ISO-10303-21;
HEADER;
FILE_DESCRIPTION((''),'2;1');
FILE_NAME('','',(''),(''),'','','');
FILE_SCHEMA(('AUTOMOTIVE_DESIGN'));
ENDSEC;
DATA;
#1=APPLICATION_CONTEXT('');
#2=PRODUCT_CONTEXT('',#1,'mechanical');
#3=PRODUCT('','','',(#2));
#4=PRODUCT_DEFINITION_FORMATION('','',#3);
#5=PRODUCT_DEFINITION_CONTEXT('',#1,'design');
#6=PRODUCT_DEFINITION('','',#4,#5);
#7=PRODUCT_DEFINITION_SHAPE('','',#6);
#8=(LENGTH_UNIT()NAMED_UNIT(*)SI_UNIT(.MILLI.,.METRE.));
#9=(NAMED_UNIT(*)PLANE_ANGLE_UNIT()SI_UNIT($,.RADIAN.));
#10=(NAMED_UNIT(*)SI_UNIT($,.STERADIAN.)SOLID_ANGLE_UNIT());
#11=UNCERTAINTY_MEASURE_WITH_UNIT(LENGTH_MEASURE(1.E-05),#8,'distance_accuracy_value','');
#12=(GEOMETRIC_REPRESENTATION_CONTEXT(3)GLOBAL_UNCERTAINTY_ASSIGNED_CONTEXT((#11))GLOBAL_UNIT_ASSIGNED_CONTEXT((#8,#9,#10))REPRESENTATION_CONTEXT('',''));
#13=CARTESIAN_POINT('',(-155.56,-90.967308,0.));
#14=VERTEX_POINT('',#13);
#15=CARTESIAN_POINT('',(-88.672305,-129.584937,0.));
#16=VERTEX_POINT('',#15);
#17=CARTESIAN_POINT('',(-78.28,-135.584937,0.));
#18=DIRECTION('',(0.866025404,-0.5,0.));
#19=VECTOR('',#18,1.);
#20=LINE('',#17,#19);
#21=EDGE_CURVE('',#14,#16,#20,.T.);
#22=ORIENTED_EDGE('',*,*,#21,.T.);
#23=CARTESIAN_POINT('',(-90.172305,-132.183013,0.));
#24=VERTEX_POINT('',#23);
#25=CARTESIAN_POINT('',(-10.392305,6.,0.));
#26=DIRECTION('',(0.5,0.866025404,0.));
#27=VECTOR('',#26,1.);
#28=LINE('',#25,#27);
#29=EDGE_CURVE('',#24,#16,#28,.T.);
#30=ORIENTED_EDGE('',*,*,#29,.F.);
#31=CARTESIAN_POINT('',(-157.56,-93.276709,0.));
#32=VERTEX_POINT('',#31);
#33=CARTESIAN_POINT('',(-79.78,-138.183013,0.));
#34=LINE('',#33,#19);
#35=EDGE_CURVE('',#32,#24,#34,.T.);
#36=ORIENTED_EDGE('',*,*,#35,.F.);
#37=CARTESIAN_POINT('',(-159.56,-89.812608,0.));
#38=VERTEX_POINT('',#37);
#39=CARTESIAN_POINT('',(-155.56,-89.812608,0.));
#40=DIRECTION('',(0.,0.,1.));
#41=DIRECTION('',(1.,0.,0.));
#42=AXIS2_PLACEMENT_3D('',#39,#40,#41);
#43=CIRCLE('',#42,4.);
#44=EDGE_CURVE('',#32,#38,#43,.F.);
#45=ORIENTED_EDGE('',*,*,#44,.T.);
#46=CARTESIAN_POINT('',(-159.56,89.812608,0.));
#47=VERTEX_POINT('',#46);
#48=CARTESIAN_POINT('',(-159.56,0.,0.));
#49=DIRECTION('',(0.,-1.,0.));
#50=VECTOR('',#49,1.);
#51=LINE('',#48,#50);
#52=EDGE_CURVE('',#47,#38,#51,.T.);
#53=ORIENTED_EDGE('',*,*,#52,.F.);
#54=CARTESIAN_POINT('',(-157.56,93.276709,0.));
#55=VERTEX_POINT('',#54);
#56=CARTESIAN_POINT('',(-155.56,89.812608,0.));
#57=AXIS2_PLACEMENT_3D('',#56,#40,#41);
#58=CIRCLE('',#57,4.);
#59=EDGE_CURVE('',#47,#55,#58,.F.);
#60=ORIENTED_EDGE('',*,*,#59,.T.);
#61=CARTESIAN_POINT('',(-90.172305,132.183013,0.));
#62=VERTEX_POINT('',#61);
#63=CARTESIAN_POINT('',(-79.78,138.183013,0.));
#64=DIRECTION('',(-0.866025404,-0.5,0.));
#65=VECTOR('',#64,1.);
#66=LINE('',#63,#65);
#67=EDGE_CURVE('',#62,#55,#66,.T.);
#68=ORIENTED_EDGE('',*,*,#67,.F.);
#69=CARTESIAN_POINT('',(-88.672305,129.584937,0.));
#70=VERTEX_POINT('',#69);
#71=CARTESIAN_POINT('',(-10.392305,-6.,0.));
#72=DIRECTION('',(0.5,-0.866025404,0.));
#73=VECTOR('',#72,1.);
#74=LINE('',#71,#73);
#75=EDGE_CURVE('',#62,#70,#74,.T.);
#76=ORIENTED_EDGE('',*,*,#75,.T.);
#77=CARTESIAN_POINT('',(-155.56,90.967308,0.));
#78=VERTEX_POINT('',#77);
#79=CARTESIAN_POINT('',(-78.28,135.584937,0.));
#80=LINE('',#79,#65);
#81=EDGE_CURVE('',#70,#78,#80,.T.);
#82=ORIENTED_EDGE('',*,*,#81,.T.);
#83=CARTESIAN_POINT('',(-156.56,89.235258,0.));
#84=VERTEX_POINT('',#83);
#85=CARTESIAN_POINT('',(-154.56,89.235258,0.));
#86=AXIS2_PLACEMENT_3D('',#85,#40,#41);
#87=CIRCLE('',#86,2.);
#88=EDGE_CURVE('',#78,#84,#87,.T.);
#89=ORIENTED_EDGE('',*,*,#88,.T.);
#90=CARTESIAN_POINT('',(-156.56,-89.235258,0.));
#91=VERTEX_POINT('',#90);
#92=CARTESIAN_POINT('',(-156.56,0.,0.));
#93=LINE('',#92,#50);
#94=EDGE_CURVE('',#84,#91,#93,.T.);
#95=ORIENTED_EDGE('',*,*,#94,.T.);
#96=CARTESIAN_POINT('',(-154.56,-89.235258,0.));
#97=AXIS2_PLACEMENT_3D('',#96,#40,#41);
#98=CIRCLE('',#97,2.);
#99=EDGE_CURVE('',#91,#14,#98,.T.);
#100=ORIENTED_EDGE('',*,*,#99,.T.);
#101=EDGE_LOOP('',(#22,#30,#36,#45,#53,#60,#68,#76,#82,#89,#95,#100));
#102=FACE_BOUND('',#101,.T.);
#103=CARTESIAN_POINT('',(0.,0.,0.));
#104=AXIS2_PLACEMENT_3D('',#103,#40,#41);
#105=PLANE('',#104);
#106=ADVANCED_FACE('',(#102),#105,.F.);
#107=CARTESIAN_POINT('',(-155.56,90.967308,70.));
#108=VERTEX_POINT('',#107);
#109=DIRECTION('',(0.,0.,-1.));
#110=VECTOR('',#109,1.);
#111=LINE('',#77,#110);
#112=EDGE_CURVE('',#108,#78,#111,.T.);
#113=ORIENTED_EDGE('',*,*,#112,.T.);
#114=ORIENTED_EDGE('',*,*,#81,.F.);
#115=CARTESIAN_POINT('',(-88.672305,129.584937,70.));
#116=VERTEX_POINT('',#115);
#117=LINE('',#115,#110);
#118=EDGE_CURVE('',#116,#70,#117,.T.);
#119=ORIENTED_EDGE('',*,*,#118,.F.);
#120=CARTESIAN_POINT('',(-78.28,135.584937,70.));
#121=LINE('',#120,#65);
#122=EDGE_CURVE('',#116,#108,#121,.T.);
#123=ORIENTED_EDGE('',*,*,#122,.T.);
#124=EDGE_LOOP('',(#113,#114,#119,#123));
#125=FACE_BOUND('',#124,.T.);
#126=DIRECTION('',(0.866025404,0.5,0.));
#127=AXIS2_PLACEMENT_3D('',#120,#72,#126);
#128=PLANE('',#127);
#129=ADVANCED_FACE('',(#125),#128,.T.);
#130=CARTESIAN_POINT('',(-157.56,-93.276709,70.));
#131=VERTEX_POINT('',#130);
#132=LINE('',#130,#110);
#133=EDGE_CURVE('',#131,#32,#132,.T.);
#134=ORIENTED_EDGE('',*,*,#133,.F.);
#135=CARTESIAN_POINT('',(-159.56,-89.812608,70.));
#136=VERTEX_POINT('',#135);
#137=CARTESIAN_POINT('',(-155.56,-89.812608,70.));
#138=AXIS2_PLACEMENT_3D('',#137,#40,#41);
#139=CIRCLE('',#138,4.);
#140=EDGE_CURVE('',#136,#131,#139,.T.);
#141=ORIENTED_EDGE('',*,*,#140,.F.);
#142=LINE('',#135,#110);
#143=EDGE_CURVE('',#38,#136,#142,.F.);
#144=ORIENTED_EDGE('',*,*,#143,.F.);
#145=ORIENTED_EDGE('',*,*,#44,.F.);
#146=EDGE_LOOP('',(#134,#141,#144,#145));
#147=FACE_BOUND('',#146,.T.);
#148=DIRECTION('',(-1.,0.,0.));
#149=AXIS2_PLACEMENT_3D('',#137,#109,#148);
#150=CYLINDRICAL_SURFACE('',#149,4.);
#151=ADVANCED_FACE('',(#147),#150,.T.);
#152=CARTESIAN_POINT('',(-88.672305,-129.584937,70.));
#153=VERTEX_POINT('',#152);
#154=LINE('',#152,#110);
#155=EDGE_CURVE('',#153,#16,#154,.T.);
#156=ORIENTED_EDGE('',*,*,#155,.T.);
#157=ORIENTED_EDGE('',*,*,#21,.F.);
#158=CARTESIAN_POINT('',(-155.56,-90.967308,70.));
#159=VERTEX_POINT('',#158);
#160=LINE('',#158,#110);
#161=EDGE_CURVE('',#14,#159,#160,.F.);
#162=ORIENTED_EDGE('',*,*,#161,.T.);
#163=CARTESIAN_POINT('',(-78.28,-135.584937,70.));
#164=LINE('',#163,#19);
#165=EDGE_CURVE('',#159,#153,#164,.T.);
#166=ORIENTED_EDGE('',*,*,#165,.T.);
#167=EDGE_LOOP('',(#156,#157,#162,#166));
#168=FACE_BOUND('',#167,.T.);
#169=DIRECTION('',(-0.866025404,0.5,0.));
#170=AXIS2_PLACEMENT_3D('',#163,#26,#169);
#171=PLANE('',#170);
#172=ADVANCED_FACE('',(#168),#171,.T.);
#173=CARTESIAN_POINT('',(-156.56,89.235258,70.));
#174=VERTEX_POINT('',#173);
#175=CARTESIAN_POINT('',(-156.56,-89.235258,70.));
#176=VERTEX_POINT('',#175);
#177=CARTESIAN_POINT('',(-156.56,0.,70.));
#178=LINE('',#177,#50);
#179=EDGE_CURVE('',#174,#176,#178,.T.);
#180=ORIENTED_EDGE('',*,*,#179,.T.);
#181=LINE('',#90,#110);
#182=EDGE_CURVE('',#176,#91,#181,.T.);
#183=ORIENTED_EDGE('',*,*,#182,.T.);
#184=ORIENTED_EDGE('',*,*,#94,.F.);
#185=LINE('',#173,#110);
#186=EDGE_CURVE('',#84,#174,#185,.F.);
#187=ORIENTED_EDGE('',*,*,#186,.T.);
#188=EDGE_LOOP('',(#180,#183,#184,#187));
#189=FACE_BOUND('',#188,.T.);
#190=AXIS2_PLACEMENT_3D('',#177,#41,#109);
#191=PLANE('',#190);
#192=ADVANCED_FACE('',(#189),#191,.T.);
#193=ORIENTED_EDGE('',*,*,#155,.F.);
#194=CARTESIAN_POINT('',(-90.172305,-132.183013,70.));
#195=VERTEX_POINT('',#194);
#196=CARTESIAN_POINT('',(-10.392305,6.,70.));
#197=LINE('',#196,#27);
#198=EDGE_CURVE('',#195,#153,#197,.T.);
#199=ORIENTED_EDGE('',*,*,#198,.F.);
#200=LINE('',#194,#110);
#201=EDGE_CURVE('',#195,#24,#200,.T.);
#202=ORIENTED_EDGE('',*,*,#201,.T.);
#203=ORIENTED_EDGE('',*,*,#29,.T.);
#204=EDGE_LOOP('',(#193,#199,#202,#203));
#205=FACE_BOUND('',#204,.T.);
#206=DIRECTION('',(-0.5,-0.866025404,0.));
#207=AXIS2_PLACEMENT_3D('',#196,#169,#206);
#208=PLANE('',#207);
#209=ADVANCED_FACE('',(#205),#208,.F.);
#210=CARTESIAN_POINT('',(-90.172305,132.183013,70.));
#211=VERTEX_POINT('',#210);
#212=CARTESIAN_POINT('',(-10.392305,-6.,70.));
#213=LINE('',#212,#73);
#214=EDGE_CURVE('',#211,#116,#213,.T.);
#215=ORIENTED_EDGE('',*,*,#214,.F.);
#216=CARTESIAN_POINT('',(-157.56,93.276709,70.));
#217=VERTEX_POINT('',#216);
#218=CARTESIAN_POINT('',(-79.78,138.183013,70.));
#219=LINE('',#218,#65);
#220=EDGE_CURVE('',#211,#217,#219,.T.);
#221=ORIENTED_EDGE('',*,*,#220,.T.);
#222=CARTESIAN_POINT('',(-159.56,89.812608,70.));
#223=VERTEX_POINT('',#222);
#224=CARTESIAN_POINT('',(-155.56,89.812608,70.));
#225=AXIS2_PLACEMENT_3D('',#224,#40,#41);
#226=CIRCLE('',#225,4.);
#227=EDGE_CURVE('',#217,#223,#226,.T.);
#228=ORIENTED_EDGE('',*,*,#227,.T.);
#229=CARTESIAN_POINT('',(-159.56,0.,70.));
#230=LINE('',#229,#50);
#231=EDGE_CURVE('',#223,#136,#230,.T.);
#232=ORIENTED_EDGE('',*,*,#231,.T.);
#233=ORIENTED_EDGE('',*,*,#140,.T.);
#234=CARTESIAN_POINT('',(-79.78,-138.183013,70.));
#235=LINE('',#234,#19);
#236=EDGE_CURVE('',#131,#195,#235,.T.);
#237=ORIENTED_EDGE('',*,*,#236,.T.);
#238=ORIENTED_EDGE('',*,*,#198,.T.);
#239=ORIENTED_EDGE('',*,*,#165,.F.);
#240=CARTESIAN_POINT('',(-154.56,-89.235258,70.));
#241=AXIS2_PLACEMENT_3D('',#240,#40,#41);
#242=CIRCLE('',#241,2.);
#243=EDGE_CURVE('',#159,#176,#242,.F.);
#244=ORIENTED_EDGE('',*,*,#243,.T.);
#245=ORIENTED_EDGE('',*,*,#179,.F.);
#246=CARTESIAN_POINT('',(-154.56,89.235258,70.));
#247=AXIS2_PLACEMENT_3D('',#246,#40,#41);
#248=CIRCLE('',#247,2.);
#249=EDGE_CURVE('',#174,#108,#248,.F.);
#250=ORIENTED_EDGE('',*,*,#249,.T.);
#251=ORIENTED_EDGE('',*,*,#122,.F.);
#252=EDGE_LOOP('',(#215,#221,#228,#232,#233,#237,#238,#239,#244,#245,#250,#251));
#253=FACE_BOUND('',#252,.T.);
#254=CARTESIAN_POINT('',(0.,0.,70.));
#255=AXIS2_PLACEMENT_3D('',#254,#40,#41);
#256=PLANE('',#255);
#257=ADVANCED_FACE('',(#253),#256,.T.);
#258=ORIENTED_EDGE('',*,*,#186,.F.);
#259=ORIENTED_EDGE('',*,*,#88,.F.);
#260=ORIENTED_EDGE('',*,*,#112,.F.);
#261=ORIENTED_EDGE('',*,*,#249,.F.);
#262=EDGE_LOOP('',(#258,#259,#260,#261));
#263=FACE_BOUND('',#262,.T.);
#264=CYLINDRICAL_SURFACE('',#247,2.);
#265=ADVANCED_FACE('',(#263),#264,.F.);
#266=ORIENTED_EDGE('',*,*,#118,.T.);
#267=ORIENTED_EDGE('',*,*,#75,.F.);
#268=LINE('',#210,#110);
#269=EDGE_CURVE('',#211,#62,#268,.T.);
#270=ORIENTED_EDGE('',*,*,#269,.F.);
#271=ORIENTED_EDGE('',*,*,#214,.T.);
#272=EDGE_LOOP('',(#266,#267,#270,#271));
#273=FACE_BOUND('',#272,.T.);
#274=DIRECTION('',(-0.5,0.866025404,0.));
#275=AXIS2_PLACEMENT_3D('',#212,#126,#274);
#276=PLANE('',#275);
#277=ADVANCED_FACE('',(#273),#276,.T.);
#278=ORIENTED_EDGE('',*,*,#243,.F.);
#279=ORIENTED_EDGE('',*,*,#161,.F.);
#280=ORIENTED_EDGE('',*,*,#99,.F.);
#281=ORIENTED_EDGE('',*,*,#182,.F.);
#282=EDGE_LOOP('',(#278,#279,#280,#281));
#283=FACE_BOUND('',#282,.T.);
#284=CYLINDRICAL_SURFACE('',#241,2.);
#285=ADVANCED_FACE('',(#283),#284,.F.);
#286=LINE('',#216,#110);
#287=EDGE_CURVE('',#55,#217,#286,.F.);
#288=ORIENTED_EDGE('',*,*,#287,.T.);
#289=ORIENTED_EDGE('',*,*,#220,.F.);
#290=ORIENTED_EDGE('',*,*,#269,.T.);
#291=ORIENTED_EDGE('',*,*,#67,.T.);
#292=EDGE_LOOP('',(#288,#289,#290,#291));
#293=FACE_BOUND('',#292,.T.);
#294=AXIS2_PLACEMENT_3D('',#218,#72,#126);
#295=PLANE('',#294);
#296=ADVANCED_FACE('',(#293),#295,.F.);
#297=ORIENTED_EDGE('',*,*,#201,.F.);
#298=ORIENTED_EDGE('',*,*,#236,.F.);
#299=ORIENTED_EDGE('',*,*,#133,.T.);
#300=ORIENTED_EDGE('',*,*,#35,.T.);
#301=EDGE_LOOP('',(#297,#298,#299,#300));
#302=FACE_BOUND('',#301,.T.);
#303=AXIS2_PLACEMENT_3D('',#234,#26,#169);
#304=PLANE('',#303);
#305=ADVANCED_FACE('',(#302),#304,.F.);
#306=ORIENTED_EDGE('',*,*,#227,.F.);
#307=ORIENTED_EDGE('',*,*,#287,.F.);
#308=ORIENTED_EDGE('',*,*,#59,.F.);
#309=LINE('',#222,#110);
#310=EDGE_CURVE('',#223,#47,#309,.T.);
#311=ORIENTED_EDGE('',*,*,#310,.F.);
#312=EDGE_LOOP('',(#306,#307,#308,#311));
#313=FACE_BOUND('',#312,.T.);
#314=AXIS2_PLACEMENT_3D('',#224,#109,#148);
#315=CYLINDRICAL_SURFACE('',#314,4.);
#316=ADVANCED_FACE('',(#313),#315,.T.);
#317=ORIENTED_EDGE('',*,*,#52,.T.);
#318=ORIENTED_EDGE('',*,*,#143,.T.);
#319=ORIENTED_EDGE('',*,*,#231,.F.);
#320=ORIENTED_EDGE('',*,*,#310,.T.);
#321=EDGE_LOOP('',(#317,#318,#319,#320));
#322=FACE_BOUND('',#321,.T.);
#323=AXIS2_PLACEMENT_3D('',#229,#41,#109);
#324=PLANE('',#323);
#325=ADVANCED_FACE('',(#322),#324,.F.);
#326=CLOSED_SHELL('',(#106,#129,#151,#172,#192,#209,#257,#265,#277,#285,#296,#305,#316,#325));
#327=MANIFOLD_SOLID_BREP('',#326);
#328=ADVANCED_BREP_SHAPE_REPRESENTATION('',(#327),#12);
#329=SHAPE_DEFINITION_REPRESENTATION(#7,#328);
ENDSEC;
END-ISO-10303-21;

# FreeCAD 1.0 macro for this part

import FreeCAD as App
import Part
import Sketcher
Q = App.Units.Quantity


def edges_at(feature, points):
    """Names of the edges that pass closest to the given points."""
    edges = feature.Shape.Edges
    near = lambda p: min(range(len(edges)), key=lambda i: edges[i].distToShape(Part.Vertex(*p))[0])
    return sorted({f"Edge{near(p) + 1}" for p in points})

doc = App.newDocument("Part")
params = doc.addObject("Spreadsheet::Sheet", "Params")
for row, (alias, value) in enumerate([
    ("sketch1_length", "3 mm"),
    ("pad1_length", "70 mm"),
    ("fillet_radius", "2 mm"),
    ("fillet2_radius", "4 mm"),
], start=1):
    params.set(f"A{row}", alias)
    params.set(f"B{row}", "=" + value)
    params.setAlias(f"B{row}", alias)

body = doc.addObject("PartDesign::Body", "Body")

# Sketch on XY plane
sketch1 = doc.addObject("Sketcher::SketchObject", "Sketch")
body.addObject(sketch1)
sketch1.AttachmentSupport = (doc.XY_Plane, [""])
sketch1.MapMode = "FlatFace"
sketch1.addGeometry([
    Part.LineSegment(App.Vector(-88.7, -129.6, 0), App.Vector(-156.6, -90.4, 0)),  # 0
    Part.LineSegment(App.Vector(-156.6, -90.4, 0), App.Vector(-156.6, 90.4, 0)),  # 1
    Part.LineSegment(App.Vector(-156.6, 90.4, 0), App.Vector(-88.7, 129.6, 0)),  # 2
    Part.LineSegment(App.Vector(-88.7, 129.6, 0), App.Vector(-90.2, 132.2, 0)),  # 3
    Part.LineSegment(App.Vector(-90.2, 132.2, 0), App.Vector(-159.6, 92.1, 0)),  # 4
    Part.LineSegment(App.Vector(-159.6, 92.1, 0), App.Vector(-159.6, -92.1, 0)),  # 5
    Part.LineSegment(App.Vector(-159.6, -92.1, 0), App.Vector(-90.2, -132.2, 0)),  # 6
    Part.LineSegment(App.Vector(-90.2, -132.2, 0), App.Vector(-88.7, -129.6, 0)),  # 7
], False)
sketch1.addConstraint([
    Sketcher.Constraint("Coincident", 0, 2, 1, 1),
    Sketcher.Constraint("Coincident", 1, 2, 2, 1),
    Sketcher.Constraint("Coincident", 2, 2, 3, 1),
    Sketcher.Constraint("Coincident", 3, 2, 4, 1),
    Sketcher.Constraint("Coincident", 4, 2, 5, 1),
    Sketcher.Constraint("Coincident", 5, 2, 6, 1),
    Sketcher.Constraint("Coincident", 6, 2, 7, 1),
    Sketcher.Constraint("Coincident", 7, 2, 0, 1),
    Sketcher.Constraint("Vertical", 1),
    Sketcher.Constraint("Vertical", 5),
    Sketcher.Constraint("Symmetric", 3, 2, 6, 2, -1),
    Sketcher.Constraint("Symmetric", 2, 2, 7, 2, -1),
    Sketcher.Constraint("Perpendicular", 2, 3),
    Sketcher.Constraint("Perpendicular", 3, 4),
    Sketcher.Constraint("Parallel", 0, 6),
    Sketcher.Constraint("Perpendicular", 6, 7),
    Sketcher.Constraint("Angle", 0, Q("150 deg")),
    Sketcher.Constraint("Distance", 3, Q("3 mm")),
    Sketcher.Constraint("DistanceX", 4, 2, 1, 2, Q("3 mm")),
    Sketcher.Constraint("DistanceX", 0, 2, -1, 1, Q("156.56 mm")),
    Sketcher.Constraint("Distance", 0, Q("78.389958 mm")),
    Sketcher.Constraint("DistanceY", 1, 1, 1, 2, Q("180.779916 mm")),
])
sketch1.setExpression("Constraints[17]", "Params.sketch1_length")
pad1 = doc.addObject("PartDesign::Pad", "Pad")
body.addObject(pad1)
pad1.Profile = sketch1
pad1.setExpression("Length", "Params.pad1_length")
doc.recompute()

fillet = doc.addObject("PartDesign::Fillet", "Fillet")
body.addObject(fillet)
fillet.Base = (pad1, edges_at(pad1, [(-156.56, 90.39, 35), (-156.56, -90.39, 35)]))
fillet.setExpression("Radius", "Params.fillet_radius")
doc.recompute()

fillet2 = doc.addObject("PartDesign::Fillet", "Fillet001")
body.addObject(fillet2)
fillet2.Base = (fillet, edges_at(fillet, [(-159.56, -92.122, 35), (-159.56, 92.122, 35)]))
fillet2.setExpression("Radius", "Params.fillet2_radius")

doc.recompute()
